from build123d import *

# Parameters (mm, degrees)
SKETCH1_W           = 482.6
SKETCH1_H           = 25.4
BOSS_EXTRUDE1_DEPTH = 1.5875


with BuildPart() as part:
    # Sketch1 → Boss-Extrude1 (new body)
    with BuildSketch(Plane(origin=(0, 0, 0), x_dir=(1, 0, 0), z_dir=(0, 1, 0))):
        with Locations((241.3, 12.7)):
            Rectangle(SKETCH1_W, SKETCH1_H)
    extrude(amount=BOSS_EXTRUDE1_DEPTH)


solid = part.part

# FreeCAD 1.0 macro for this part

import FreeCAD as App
import Part
import Sketcher
Q = App.Units.Quantity


def add_polygon(sketch, points):
    """Adds a closed chain of lines whose ends are joined by coincident constraints."""
    first, n = sketch.GeometryCount, len(points)
    for a, b in zip(points, points[1:] + points[:1]):
        sketch.addGeometry(Part.LineSegment(App.Vector(*a, 0), App.Vector(*b, 0)), False)
    for i in range(n):
        sketch.addConstraint(Sketcher.Constraint("Coincident", first + i, 2, first + (i + 1) % n, 1))

doc = App.newDocument("Part")
params = doc.addObject("Spreadsheet::Sheet", "Params")
for row, (alias, value) in enumerate([
    ("sketch1_width", "19 in"),
    ("sketch1_height", "1 in"),
    ("pad1_length", "0.0625 in"),
], start=1):
    params.set(f"A{row}", alias)
    params.set(f"B{row}", "=" + value)
    params.setAlias(f"B{row}", alias)

body = doc.addObject("PartDesign::Body", "Body")

# Sketch on XZ plane
sketch1 = body.newObject("Sketcher::SketchObject", "Sketch")
sketch1.AttachmentSupport = (doc.getObject("XZ_Plane"), [""])
sketch1.MapMode = "FlatFace"
add_polygon(sketch1, [(0, -25), (0, 0), (483, 0), (483, -25)])  # lines 0-3
sketch1.addConstraint(Sketcher.Constraint("Vertical", 0))
sketch1.addConstraint(Sketcher.Constraint("Horizontal", 1))
sketch1.addConstraint(Sketcher.Constraint("Vertical", 2))
sketch1.addConstraint(Sketcher.Constraint("Horizontal", 3))
sketch1.addConstraint(Sketcher.Constraint("Coincident", 0, 2, -1, 1))
sketch1.addConstraint(Sketcher.Constraint("DistanceX", 1, 1, 1, 2, Q("19 in")))
sketch1.addConstraint(Sketcher.Constraint("DistanceY", 0, 1, 0, 2, Q("1 in")))
sketch1.setExpression("Constraints[9]", "Params.sketch1_width")
sketch1.setExpression("Constraints[10]", "Params.sketch1_height")
pad1 = body.newObject("PartDesign::Pad", "Pad")
pad1.Profile = sketch1
pad1.setExpression("Length", "Params.pad1_length")
pad1.Reversed = True

doc.recompute()
